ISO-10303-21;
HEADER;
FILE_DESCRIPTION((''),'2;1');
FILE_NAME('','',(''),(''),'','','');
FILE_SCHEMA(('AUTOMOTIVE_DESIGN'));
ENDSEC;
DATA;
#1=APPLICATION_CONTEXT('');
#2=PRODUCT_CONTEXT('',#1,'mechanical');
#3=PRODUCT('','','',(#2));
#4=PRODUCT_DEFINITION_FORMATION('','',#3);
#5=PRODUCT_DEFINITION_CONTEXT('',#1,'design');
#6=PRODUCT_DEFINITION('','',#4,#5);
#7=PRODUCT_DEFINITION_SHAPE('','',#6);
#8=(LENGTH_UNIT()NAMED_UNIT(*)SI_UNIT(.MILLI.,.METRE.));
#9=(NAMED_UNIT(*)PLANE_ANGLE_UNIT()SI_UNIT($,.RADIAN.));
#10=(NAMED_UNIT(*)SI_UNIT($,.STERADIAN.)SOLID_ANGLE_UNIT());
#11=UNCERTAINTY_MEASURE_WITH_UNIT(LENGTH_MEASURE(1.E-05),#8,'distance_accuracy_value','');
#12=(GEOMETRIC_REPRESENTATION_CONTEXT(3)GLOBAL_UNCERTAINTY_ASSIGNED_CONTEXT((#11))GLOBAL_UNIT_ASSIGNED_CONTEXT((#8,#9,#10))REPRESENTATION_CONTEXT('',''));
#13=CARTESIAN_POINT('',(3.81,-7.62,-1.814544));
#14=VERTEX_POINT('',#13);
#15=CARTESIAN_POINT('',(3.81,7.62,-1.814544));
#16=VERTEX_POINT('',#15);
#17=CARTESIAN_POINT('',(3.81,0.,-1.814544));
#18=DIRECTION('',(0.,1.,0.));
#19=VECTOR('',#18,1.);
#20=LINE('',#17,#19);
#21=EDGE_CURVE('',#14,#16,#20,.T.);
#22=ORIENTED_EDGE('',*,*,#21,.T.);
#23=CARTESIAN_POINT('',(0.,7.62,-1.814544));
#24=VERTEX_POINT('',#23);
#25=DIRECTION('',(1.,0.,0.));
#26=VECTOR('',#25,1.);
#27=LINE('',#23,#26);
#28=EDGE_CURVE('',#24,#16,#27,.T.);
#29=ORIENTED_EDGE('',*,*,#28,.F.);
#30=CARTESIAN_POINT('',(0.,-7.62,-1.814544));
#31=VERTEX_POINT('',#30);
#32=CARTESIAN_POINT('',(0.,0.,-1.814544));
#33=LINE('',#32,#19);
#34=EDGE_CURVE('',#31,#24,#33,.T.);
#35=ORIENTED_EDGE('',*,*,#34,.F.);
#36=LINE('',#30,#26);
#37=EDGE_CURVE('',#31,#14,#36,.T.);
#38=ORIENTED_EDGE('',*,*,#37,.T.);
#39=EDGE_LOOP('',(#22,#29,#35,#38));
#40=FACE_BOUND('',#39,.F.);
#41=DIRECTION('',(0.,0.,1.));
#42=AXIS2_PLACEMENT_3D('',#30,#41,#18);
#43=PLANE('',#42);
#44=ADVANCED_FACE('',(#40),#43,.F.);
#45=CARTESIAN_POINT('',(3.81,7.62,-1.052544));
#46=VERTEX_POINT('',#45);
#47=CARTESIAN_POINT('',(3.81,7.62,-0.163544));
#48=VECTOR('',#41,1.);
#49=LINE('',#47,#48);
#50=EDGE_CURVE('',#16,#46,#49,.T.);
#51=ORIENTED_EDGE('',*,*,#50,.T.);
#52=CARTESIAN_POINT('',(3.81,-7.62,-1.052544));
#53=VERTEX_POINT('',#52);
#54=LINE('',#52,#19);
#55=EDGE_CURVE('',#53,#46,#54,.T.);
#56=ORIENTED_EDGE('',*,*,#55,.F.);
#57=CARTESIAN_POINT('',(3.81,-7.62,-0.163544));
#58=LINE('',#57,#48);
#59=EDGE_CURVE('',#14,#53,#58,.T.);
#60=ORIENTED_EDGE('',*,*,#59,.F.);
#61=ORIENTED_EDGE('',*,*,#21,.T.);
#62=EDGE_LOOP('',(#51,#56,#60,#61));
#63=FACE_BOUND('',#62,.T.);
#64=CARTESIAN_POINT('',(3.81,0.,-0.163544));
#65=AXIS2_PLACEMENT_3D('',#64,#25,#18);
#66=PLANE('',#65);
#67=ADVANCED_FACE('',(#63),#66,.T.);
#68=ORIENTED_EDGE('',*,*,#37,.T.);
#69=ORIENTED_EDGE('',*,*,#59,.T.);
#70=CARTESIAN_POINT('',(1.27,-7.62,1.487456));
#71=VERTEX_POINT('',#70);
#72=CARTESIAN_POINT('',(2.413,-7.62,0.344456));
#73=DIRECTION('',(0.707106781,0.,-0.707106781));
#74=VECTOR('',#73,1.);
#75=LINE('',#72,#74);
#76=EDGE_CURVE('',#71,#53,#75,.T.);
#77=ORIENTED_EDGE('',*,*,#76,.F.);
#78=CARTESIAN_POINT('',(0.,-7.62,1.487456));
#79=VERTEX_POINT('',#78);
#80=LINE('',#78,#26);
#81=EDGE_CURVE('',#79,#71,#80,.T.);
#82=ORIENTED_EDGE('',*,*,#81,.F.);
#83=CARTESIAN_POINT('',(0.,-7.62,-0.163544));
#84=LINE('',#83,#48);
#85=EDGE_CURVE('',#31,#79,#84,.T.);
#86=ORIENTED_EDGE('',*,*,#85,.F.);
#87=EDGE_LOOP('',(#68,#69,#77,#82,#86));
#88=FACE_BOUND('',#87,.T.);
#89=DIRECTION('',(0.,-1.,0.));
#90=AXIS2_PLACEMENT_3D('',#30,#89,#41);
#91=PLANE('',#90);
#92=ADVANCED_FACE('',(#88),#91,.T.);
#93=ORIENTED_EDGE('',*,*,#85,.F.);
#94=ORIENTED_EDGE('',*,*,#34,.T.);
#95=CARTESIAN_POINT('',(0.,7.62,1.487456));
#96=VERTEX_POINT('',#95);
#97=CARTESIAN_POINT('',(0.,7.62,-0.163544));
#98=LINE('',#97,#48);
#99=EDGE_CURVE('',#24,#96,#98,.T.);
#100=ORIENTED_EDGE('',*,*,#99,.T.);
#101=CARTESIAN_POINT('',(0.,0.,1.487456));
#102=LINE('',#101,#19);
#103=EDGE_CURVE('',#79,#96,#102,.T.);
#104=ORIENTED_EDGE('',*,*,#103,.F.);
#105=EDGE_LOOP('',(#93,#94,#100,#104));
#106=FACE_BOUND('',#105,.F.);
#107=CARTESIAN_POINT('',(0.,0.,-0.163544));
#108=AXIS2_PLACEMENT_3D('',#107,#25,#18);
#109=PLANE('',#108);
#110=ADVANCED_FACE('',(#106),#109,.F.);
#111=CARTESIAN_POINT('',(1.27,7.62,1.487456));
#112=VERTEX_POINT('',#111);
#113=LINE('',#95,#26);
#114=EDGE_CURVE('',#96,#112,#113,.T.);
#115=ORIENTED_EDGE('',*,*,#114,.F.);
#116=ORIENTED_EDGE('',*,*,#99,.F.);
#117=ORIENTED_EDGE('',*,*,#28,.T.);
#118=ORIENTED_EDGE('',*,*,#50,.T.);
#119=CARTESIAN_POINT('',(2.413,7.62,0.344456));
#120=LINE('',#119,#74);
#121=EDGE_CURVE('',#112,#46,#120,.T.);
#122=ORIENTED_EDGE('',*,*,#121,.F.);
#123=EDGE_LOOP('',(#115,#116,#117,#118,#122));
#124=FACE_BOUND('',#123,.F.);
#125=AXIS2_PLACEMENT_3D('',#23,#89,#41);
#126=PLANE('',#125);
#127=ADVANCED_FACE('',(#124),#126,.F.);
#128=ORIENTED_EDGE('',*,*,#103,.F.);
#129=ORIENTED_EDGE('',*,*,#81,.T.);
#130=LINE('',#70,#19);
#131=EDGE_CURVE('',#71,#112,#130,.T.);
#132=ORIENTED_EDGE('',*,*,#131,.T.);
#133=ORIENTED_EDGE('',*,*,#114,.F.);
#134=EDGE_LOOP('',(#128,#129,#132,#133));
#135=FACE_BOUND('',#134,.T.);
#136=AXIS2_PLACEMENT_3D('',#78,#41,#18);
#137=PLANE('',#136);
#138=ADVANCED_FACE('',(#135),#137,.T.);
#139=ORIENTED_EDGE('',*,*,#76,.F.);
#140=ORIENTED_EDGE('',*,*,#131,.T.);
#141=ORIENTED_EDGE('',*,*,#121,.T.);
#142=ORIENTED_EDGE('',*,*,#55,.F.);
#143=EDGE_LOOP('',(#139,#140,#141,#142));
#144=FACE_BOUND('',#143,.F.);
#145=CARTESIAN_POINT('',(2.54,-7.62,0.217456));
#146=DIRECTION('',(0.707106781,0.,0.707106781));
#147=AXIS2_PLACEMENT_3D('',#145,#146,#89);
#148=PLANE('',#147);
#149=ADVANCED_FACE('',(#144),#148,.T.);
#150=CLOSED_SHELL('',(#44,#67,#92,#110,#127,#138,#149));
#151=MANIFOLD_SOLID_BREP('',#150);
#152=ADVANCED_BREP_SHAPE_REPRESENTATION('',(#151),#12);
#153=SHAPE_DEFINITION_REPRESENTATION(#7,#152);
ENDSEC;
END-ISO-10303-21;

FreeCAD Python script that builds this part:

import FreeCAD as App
import Part
import Sketcher

V = App.Vector
Q = App.Units.Quantity


def edges_at(feature, points):
    """Names of the edges that pass closest to the given points."""
    edges = feature.Shape.Edges
    near = lambda p: min(range(len(edges)), key=lambda i: edges[i].distToShape(Part.Vertex(*p))[0])
    return sorted({f"Edge{near(p) + 1}" for p in points})


def add_polygon(sketch, points):
    """Adds a closed chain of lines whose ends are joined by coincident constraints."""
    first, n = sketch.GeometryCount, len(points)
    for a, b in zip(points, points[1:] + points[:1]):
        sketch.addGeometry(Part.LineSegment(App.Vector(*a, 0), App.Vector(*b, 0)), False)
    for i in range(n):
        sketch.addConstraint(Sketcher.Constraint("Coincident", first + i, 2, first + (i + 1) % n, 1))

doc = App.newDocument("Part")
body = doc.addObject("PartDesign::Body", "Body")

# Sketch on YZ plane
sketch1 = body.newObject("Sketcher::SketchObject", "Sketch")
sketch1.AttachmentSupport = (doc.getObject("YZ_Plane"), [""])
sketch1.MapMode = "FlatFace"
add_polygon(sketch1, [(-7.6, 1.5), (-7.6, -1.8), (7.6, -1.8), (7.6, 1.5)])  # lines 0-3
sketch1.addConstraint(Sketcher.Constraint("Vertical", 0))
sketch1.addConstraint(Sketcher.Constraint("Horizontal", 1))
sketch1.addConstraint(Sketcher.Constraint("Vertical", 2))
sketch1.addConstraint(Sketcher.Constraint("Horizontal", 3))
sketch1.addConstraint(Sketcher.Constraint("DistanceX", 1, 1, 1, 2, Q("0.6 in")))
sketch1.addConstraint(Sketcher.Constraint("DistanceY", 0, 2, 0, 1, Q("0.13 in")))
sketch1.addConstraint(Sketcher.Constraint("DistanceX", 0, 2, -1, 1, Q("0.3 in")))
sketch1.addConstraint(Sketcher.Constraint("DistanceY", 0, 2, -1, 1, 1.814544))
pad1 = body.newObject("PartDesign::Pad", "Pad")
pad1.Profile = sketch1
pad1.Length = Q("0.15 in")
doc.recompute()

chamfer = body.newObject("PartDesign::Chamfer", "Chamfer")
chamfer.Base = (pad1, edges_at(pad1, [(3.81, 0, 1.487)]))
chamfer.Size = Q("0.1 in")

doc.recompute()
